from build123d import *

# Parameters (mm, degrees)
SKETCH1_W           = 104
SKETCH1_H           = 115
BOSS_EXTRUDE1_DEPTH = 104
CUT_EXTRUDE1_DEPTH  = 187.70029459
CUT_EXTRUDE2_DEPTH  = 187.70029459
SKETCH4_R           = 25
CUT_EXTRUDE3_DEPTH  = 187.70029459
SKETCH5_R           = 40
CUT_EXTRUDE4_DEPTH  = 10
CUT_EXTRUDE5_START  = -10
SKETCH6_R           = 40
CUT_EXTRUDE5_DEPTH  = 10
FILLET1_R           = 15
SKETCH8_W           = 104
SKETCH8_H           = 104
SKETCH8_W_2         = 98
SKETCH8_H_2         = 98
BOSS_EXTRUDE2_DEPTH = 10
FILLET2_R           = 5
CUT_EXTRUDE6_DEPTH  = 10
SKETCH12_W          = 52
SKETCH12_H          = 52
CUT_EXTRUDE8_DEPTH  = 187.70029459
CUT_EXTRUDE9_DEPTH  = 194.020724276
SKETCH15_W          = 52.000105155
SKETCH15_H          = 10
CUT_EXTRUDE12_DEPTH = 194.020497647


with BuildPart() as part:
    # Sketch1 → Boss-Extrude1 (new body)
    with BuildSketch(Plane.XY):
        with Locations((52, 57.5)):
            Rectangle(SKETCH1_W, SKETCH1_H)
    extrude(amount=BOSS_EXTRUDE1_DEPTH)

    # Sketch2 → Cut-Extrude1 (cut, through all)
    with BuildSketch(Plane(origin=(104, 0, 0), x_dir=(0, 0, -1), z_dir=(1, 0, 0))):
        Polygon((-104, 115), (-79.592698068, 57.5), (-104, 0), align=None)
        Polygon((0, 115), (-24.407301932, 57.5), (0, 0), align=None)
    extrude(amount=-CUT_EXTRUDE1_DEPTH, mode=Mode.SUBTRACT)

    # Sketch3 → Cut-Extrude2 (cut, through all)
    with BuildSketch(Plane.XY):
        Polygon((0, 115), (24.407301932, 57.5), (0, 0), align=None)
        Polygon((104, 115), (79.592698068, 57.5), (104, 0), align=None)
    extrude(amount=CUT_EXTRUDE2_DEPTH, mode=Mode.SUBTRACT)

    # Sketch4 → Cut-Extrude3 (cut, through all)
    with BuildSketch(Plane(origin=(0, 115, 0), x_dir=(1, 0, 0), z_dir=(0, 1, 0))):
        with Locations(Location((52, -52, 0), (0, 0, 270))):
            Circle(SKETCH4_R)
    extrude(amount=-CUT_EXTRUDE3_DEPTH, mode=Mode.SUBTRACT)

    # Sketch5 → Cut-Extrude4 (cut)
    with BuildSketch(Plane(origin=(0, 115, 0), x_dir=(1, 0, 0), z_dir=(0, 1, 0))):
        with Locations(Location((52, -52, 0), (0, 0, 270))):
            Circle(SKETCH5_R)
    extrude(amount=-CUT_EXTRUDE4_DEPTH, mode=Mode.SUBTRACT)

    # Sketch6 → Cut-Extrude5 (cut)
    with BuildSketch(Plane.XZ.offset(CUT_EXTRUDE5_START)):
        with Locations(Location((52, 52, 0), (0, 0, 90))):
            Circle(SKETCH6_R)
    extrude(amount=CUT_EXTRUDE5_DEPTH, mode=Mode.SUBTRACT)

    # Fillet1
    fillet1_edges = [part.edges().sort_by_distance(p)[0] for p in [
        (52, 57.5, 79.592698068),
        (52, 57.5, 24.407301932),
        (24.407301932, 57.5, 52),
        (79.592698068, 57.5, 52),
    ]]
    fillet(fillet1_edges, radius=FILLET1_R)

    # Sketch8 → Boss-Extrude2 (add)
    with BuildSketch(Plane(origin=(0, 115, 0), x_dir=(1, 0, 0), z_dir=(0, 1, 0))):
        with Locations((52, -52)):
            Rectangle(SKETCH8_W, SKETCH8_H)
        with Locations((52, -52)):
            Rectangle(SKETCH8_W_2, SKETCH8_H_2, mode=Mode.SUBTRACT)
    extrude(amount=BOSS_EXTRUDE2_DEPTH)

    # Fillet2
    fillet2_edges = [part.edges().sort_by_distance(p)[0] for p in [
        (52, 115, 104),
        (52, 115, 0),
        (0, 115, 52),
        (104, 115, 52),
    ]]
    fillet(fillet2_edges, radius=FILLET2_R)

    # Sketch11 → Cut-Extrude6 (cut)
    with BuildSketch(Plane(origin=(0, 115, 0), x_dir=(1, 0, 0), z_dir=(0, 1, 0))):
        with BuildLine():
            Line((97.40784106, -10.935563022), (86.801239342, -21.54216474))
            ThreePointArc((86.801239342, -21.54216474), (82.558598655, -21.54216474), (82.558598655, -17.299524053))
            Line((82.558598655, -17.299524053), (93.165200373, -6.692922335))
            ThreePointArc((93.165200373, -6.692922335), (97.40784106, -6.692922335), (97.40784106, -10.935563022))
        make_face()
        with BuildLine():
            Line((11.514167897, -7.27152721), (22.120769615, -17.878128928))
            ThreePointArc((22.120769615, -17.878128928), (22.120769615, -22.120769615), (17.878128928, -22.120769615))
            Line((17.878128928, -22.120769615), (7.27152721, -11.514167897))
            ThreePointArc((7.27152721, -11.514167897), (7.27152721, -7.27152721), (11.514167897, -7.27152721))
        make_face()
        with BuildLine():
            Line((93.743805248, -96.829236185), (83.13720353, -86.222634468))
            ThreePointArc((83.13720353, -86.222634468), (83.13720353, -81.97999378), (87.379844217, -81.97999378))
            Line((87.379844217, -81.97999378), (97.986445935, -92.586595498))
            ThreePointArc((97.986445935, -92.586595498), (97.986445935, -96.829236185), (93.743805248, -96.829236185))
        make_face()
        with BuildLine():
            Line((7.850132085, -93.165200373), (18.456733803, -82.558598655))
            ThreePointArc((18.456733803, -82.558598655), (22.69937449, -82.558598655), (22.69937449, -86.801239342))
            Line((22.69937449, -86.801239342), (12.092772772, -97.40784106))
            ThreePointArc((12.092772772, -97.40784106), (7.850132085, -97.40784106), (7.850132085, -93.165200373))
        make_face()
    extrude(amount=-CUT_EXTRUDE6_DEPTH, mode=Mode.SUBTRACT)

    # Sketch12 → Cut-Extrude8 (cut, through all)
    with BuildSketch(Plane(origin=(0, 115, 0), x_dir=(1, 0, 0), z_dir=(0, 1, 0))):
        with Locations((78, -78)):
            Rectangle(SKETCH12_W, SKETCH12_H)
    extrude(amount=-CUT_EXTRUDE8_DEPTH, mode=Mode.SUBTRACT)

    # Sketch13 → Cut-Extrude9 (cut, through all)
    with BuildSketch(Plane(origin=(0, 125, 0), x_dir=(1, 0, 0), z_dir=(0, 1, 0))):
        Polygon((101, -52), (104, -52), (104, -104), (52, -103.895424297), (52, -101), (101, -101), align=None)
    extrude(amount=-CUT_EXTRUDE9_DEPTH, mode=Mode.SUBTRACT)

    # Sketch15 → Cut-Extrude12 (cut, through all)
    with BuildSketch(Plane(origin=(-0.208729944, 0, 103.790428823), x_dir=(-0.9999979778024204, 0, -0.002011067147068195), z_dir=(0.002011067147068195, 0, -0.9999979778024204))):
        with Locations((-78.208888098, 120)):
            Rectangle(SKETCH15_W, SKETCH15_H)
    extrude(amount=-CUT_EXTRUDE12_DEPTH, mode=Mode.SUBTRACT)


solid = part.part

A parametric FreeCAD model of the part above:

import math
import FreeCAD as App
import Part
import Sketcher

V = App.Vector
Q = App.Units.Quantity


def edges_at(feature, points):
    """Names of the edges that pass closest to the given points."""
    edges = feature.Shape.Edges
    near = lambda p: min(range(len(edges)), key=lambda i: edges[i].distToShape(Part.Vertex(*p))[0])
    return sorted({f"Edge{near(p) + 1}" for p in points})

doc = App.newDocument("Part")
body = doc.addObject("PartDesign::Body", "Body")

sketch1 = body.newObject("Sketcher::SketchObject", "Sketch")
sketch1.AttachmentSupport = (doc.getObject("XY_Plane"), [""])
sketch1.MapMode = "FlatFace"
sketch1.addGeometry([
    Part.LineSegment(V(0, 115, 0), V(0, 0, 0)),
    Part.LineSegment(V(0, 0, 0), V(104, 0, 0)),
    Part.LineSegment(V(104, 0, 0), V(104, 115, 0)),
    Part.LineSegment(V(104, 115, 0), V(0, 115, 0)),
], False)
sketch1.addConstraint([
    Sketcher.Constraint("Coincident", 0, 2, 1, 1),
    Sketcher.Constraint("Coincident", 1, 2, 2, 1),
    Sketcher.Constraint("Coincident", 2, 2, 3, 1),
    Sketcher.Constraint("Coincident", 3, 2, 0, 1),
    Sketcher.Constraint("Vertical", 0),
    Sketcher.Constraint("Horizontal", 1),
    Sketcher.Constraint("Vertical", 2),
    Sketcher.Constraint("Horizontal", 3),
    Sketcher.Constraint("Coincident", 0, 2, -1, 1),
    Sketcher.Constraint("DistanceX", 1, 1, 1, 2, 104.0),
    Sketcher.Constraint("DistanceY", 0, 2, 0, 1, 115.0),
])
pad1 = body.newObject("PartDesign::Pad", "Pad")
pad1.Profile = sketch1
pad1.Length = 104

sketch2 = body.newObject("Sketcher::SketchObject", "Sketch001")
sketch2.AttachmentSupport = (doc.getObject("YZ_Plane"), [""])
sketch2.MapMode = "FlatFace"
sketch2.AttachmentOffset = App.Placement(V(0, 0, 104), App.Rotation())
sketch2.addGeometry([
    Part.LineSegment(V(57.5, 79.592698, 0), V(115, 104, 0)),
    Part.LineSegment(V(115, 104, 0), V(0, 104, 0)),
    Part.LineSegment(V(0, 104, 0), V(57.5, 79.592698, 0)),
    Part.LineSegment(V(115, 0, 0), V(57.5, 24.407302, 0)),
    Part.LineSegment(V(57.5, 24.407302, 0), V(0, 0, 0)),
    Part.LineSegment(V(0, 0, 0), V(115, 0, 0)),
], False)
sketch2.addConstraint([
    Sketcher.Constraint("Coincident", 0, 2, 1, 1),
    Sketcher.Constraint("Coincident", 1, 2, 2, 1),
    Sketcher.Constraint("Coincident", 2, 2, 0, 1),
    Sketcher.Constraint("Coincident", 3, 2, 4, 1),
    Sketcher.Constraint("Coincident", 4, 2, 5, 1),
    Sketcher.Constraint("Coincident", 5, 2, 3, 1),
    Sketcher.Constraint("Horizontal", 1),
    Sketcher.Constraint("Horizontal", 5),
    Sketcher.Constraint("Coincident", 4, 2, -1, 1),
    Sketcher.Constraint("PointOnObject", 1, 2, -2),
    Sketcher.Constraint("Parallel", 2, 3),
    Sketcher.Constraint("Parallel", 0, 4),
    Sketcher.Constraint("Vertical", 2, 2, 3, 2),
    Sketcher.Constraint("Vertical", 0, 2, 5, 2),
    Sketcher.Constraint("DistanceX", 1, 2, 1, 1, 115.0),
    Sketcher.Constraint("Angle", 0, Q("23 deg")),
    Sketcher.Constraint("DistanceY", -1, 1, 0, 2, 104.0),
])
pocket1 = body.newObject("PartDesign::Pocket", "Pocket")
pocket1.Profile = sketch2
pocket1.Type = "ThroughAll"

sketch3 = body.newObject("Sketcher::SketchObject", "Sketch002")
sketch3.AttachmentSupport = (doc.getObject("XY_Plane"), [""])
sketch3.MapMode = "FlatFace"
sketch3.addGeometry([
    Part.LineSegment(V(24.407302, 57.5, 0), V(0, 115, 0)),
    Part.LineSegment(V(0, 115, 0), V(0, 0, 0)),
    Part.LineSegment(V(0, 0, 0), V(24.407302, 57.5, 0)),
    Part.LineSegment(V(104, 115, 0), V(79.592698, 57.5, 0)),
    Part.LineSegment(V(79.592698, 57.5, 0), V(104, 0, 0)),
    Part.LineSegment(V(104, 0, 0), V(104, 115, 0)),
], False)
sketch3.addConstraint([
    Sketcher.Constraint("Coincident", 0, 2, 1, 1),
    Sketcher.Constraint("Coincident", 1, 2, 2, 1),
    Sketcher.Constraint("Coincident", 2, 2, 0, 1),
    Sketcher.Constraint("Coincident", 3, 2, 4, 1),
    Sketcher.Constraint("Coincident", 4, 2, 5, 1),
    Sketcher.Constraint("Coincident", 5, 2, 3, 1),
    Sketcher.Constraint("Vertical", 1),
    Sketcher.Constraint("Vertical", 5),
    Sketcher.Constraint("Coincident", 1, 2, -1, 1),
    Sketcher.Constraint("PointOnObject", 4, 2, -1),
    Sketcher.Constraint("Parallel", 2, 3),
    Sketcher.Constraint("Parallel", 0, 4),
    Sketcher.Constraint("Horizontal", 2, 2, 3, 2),
    Sketcher.Constraint("Horizontal", 0, 2, 5, 2),
    Sketcher.Constraint("DistanceY", 1, 2, 1, 1, 115.0),
    Sketcher.Constraint("Angle", 0, Q("113 deg")),
    Sketcher.Constraint("DistanceX", -1, 1, 4, 2, 104.0),
])
pocket2 = body.newObject("PartDesign::Pocket", "Pocket001")
pocket2.Profile = sketch3
pocket2.Type = "ThroughAll"
pocket2.Reversed = True

sketch4 = body.newObject("Sketcher::SketchObject", "Sketch003")
sketch4.AttachmentSupport = (doc.getObject("XZ_Plane"), [""])
sketch4.MapMode = "FlatFace"
sketch4.AttachmentOffset = App.Placement(V(0, 0, -115), App.Rotation())
sketch4.addGeometry(Part.Circle(V(52, 52, 0), V(0, 0, 1), 25), False)
sketch4.addConstraint([
    Sketcher.Constraint("Diameter", 0, 50.0),
    Sketcher.Constraint("DistanceX", -1, 1, 0, 3, 52.0),
    Sketcher.Constraint("DistanceY", -1, 1, 0, 3, 52.0),
])
pocket3 = body.newObject("PartDesign::Pocket", "Pocket002")
pocket3.Profile = sketch4
pocket3.Type = "ThroughAll"
pocket3.Reversed = True

sketch5 = body.newObject("Sketcher::SketchObject", "Sketch004")
sketch5.AttachmentSupport = (doc.getObject("XZ_Plane"), [""])
sketch5.MapMode = "FlatFace"
sketch5.AttachmentOffset = App.Placement(V(0, 0, -115), App.Rotation())
sketch5.addGeometry(Part.Circle(V(52, 52, 0), V(0, 0, 1), 40), False)
sketch5.addConstraint([
    Sketcher.Constraint("Diameter", 0, 80.0),
    Sketcher.Constraint("DistanceX", -1, 1, 0, 3, 52.0),
    Sketcher.Constraint("DistanceY", -1, 1, 0, 3, 52.0),
])
pocket4 = body.newObject("PartDesign::Pocket", "Pocket003")
pocket4.Profile = sketch5
pocket4.Length = 10
pocket4.Reversed = True

sketch6 = body.newObject("Sketcher::SketchObject", "Sketch005")
sketch6.AttachmentSupport = (doc.getObject("XZ_Plane"), [""])
sketch6.MapMode = "FlatFace"
sketch6.AttachmentOffset = App.Placement(V(0, 0, -10), App.Rotation())
sketch6.addGeometry(Part.Circle(V(52, 52, 0), V(0, 0, 1), 40), False)
sketch6.addConstraint([
    Sketcher.Constraint("Diameter", 0, 80.0),
    Sketcher.Constraint("DistanceX", -1, 1, 0, 3, 52.0),
    Sketcher.Constraint("DistanceY", -1, 1, 0, 3, 52.0),
])
pocket5 = body.newObject("PartDesign::Pocket", "Pocket004")
pocket5.Profile = sketch6
pocket5.Length = 10
pocket5.Reversed = True
doc.recompute()

fillet = body.newObject("PartDesign::Fillet", "Fillet")
fillet.Base = (pocket5, edges_at(pocket5, [
    (52, 57.5, 79.593),
    (52, 57.5, 24.407),
    (24.407, 57.5, 52),
    (79.593, 57.5, 52),
]))
fillet.Radius = 15

sketch7 = body.newObject("Sketcher::SketchObject", "Sketch006")
sketch7.AttachmentSupport = (doc.getObject("XZ_Plane"), [""])
sketch7.MapMode = "FlatFace"
sketch7.AttachmentOffset = App.Placement(V(0, 0, -115), App.Rotation())
sketch7.addGeometry([
    Part.LineSegment(V(0, 0, 0), V(0, 104, 0)),
    Part.LineSegment(V(0, 104, 0), V(104, 104, 0)),
    Part.LineSegment(V(104, 104, 0), V(104, 0, 0)),
    Part.LineSegment(V(104, 0, 0), V(0, 0, 0)),
    Part.LineSegment(V(101, 101, 0), V(3, 101, 0)),
    Part.LineSegment(V(3, 101, 0), V(3, 3, 0)),
    Part.LineSegment(V(3, 3, 0), V(101, 3, 0)),
    Part.LineSegment(V(101, 3, 0), V(101, 101, 0)),
], False)
sketch7.addConstraint([
    Sketcher.Constraint("Coincident", 0, 2, 1, 1),
    Sketcher.Constraint("Coincident", 1, 2, 2, 1),
    Sketcher.Constraint("Coincident", 2, 2, 3, 1),
    Sketcher.Constraint("Coincident", 3, 2, 0, 1),
    Sketcher.Constraint("Coincident", 4, 2, 5, 1),
    Sketcher.Constraint("Coincident", 5, 2, 6, 1),
    Sketcher.Constraint("Coincident", 6, 2, 7, 1),
    Sketcher.Constraint("Coincident", 7, 2, 4, 1),
    Sketcher.Constraint("Vertical", 0),
    Sketcher.Constraint("Horizontal", 1),
    Sketcher.Constraint("Vertical", 2),
    Sketcher.Constraint("Horizontal", 3),
    Sketcher.Constraint("Horizontal", 4),
    Sketcher.Constraint("Vertical", 5),
    Sketcher.Constraint("Horizontal", 6),
    Sketcher.Constraint("Vertical", 7),
    Sketcher.Constraint("Coincident", 3, 2, -1, 1),
    Sketcher.Constraint("Equal", 3, 0),
    Sketcher.Constraint("Equal", 6, 5),
    Sketcher.Constraint("DistanceX", 1, 1, 1, 2, 104.0),
    Sketcher.Constraint("DistanceX", 4, 2, 4, 1, 98.0),
    Sketcher.Constraint("DistanceX", -1, 1, 4, 2, 3.0),
    Sketcher.Constraint("DistanceY", -1, 1, 4, 2, 101.0),
])
pad2 = body.newObject("PartDesign::Pad", "Pad001")
pad2.Profile = sketch7
pad2.Length = 10
pad2.Reversed = True
doc.recompute()

fillet2 = body.newObject("PartDesign::Fillet", "Fillet001")
fillet2.Base = (pad2, edges_at(pad2, [
    (52, 115, 104),
    (52, 115, 0),
    (0, 115, 52),
    (104, 115, 52),
]))
fillet2.Radius = 5

sketch8 = body.newObject("Sketcher::SketchObject", "Sketch007")
sketch8.AttachmentSupport = (doc.getObject("XZ_Plane"), [""])
sketch8.MapMode = "FlatFace"
sketch8.AttachmentOffset = App.Placement(V(0, 0, -115), App.Rotation())
sketch8.addGeometry([
    Part.LineSegment(V(86.801239, 21.542165, 0), V(97.407841, 10.935563, 0)),
    Part.ArcOfCircle(Part.Circle(V(95.286521, 8.814243, 0), V(0, 0, 1), 3), math.radians(-135), math.radians(45)),
    Part.LineSegment(V(93.1652, 6.692922, 0), V(82.558599, 17.299524, 0)),
    Part.ArcOfCircle(Part.Circle(V(84.679919, 19.420844, 0), V(0, 0, 1), 3), math.radians(45), math.radians(225)),
    Part.LineSegment(V(22.12077, 17.878129, 0), V(11.514168, 7.271527, 0)),
    Part.ArcOfCircle(Part.Circle(V(9.392848, 9.392848, 0), V(0, 0, 1), 3), math.radians(135), math.radians(315)),
    Part.LineSegment(V(7.271527, 11.514168, 0), V(17.878129, 22.12077, 0)),
    Part.ArcOfCircle(Part.Circle(V(19.999449, 19.999449, 0), V(0, 0, 1), 3), math.radians(-45), math.radians(135)),
    Part.LineSegment(V(83.137204, 86.222634, 0), V(93.743805, 96.829236, 0)),
    Part.ArcOfCircle(Part.Circle(V(95.865126, 94.707916, 0), V(0, 0, 1), 3), math.radians(-45), math.radians(135)),
    Part.LineSegment(V(97.986446, 92.586595, 0), V(87.379844, 81.979994, 0)),
    Part.ArcOfCircle(Part.Circle(V(85.258524, 84.101314, 0), V(0, 0, 1), 3), math.radians(135), math.radians(315)),
    Part.LineSegment(V(18.456734, 82.558599, 0), V(7.850132, 93.1652, 0)),
    Part.ArcOfCircle(Part.Circle(V(9.971452, 95.286521, 0), V(0, 0, 1), 3), math.radians(45), math.radians(225)),
    Part.LineSegment(V(12.092773, 97.407841, 0), V(22.699374, 86.801239, 0)),
    Part.ArcOfCircle(Part.Circle(V(20.578054, 84.679919, 0), V(0, 0, 1), 3), math.radians(-135), math.radians(45)),
], False)
sketch8.addConstraint([
    Sketcher.Constraint("Tangent", 0, 2, 1, 2),
    Sketcher.Constraint("Tangent", 1, 1, 2, 1),
    Sketcher.Constraint("Tangent", 2, 2, 3, 2),
    Sketcher.Constraint("Tangent", 3, 1, 0, 1),
    Sketcher.Constraint("Tangent", 4, 2, 5, 2),
    Sketcher.Constraint("Tangent", 5, 1, 6, 1),
    Sketcher.Constraint("Tangent", 6, 2, 7, 2),
    Sketcher.Constraint("Tangent", 7, 1, 4, 1),
    Sketcher.Constraint("Tangent", 8, 2, 9, 2),
    Sketcher.Constraint("Tangent", 9, 1, 10, 1),
    Sketcher.Constraint("Tangent", 10, 2, 11, 2),
    Sketcher.Constraint("Tangent", 11, 1, 8, 1),
    Sketcher.Constraint("Tangent", 12, 2, 13, 2),
    Sketcher.Constraint("Tangent", 13, 1, 14, 1),
    Sketcher.Constraint("Tangent", 14, 2, 15, 2),
    Sketcher.Constraint("Tangent", 15, 1, 12, 1),
    Sketcher.Constraint("Equal", 1, 3),
    Sketcher.Constraint("Equal", 3, 5),
    Sketcher.Constraint("Equal", 5, 7),
    Sketcher.Constraint("Equal", 7, 9),
    Sketcher.Constraint("Equal", 9, 11),
    Sketcher.Constraint("Equal", 11, 13),
    Sketcher.Constraint("Equal", 13, 15),
    Sketcher.Constraint("Perpendicular", 2, 4),
    Sketcher.Constraint("Parallel", 6, 8),
    Sketcher.Constraint("Perpendicular", 10, 12),
    Sketcher.Constraint("Equal", 2, 4),
    Sketcher.Constraint("Equal", 6, 8),
    Sketcher.Constraint("Equal", 10, 12),
    Sketcher.Constraint("Radius", 1, 3.0),
    Sketcher.Constraint("Angle", 0, Q("-45 deg")),
    Sketcher.Constraint("Distance", 0, 15.0),
    Sketcher.Constraint("DistanceX", -1, 1, 1, 1, 93.1652),
    Sketcher.Constraint("DistanceY", -1, 1, 12, 2, 93.1652),
    Sketcher.Constraint("DistanceX", -1, 1, 7, 3, 19.999449),
    Sketcher.Constraint("DistanceY", -1, 1, 7, 3, 19.999449),
    Sketcher.Constraint("DistanceY", 3, 3, 9, 3, 75.287071),
    Sketcher.Constraint("DistanceX", 5, 3, 9, 3, 86.472278),
    Sketcher.Constraint("DistanceY", 5, 3, 9, 3, 85.315068),
    Sketcher.Constraint("DistanceX", 13, 3, 11, 3, 75.287071),
])
pocket6 = body.newObject("PartDesign::Pocket", "Pocket005")
pocket6.Profile = sketch8
pocket6.Length = 10
pocket6.Reversed = True

sketch9 = body.newObject("Sketcher::SketchObject", "Sketch008")
sketch9.AttachmentSupport = (doc.getObject("XZ_Plane"), [""])
sketch9.MapMode = "FlatFace"
sketch9.AttachmentOffset = App.Placement(V(0, 0, -115), App.Rotation())
sketch9.addGeometry([
    Part.LineSegment(V(52, 52, 0), V(52, 104, 0)),
    Part.LineSegment(V(52, 104, 0), V(104, 104, 0)),
    Part.LineSegment(V(104, 104, 0), V(104, 52, 0)),
    Part.LineSegment(V(104, 52, 0), V(52, 52, 0)),
], False)
sketch9.addConstraint([
    Sketcher.Constraint("Coincident", 0, 2, 1, 1),
    Sketcher.Constraint("Coincident", 1, 2, 2, 1),
    Sketcher.Constraint("Coincident", 2, 2, 3, 1),
    Sketcher.Constraint("Coincident", 3, 2, 0, 1),
    Sketcher.Constraint("Vertical", 0),
    Sketcher.Constraint("Horizontal", 1),
    Sketcher.Constraint("Vertical", 2),
    Sketcher.Constraint("Horizontal", 3),
    Sketcher.Constraint("Equal", 3, 0),
    Sketcher.Constraint("DistanceX", 1, 1, 1, 2, 52.0),
    Sketcher.Constraint("DistanceX", -1, 1, 0, 2, 52.0),
    Sketcher.Constraint("DistanceY", -1, 1, 0, 2, 104.0),
])
pocket7 = body.newObject("PartDesign::Pocket", "Pocket006")
pocket7.Profile = sketch9
pocket7.Type = "ThroughAll"
pocket7.Reversed = True

sketch10 = body.newObject("Sketcher::SketchObject", "Sketch009")
sketch10.AttachmentSupport = (doc.getObject("XZ_Plane"), [""])
sketch10.MapMode = "FlatFace"
sketch10.AttachmentOffset = App.Placement(V(0, 0, -125), App.Rotation())
sketch10.addGeometry([
    Part.LineSegment(V(104, 52, 0), V(101, 52, 0)),
    Part.LineSegment(V(101, 52, 0), V(101, 101, 0)),
    Part.LineSegment(V(101, 101, 0), V(52, 101, 0)),
    Part.LineSegment(V(52, 101, 0), V(52, 103.895424, 0)),
    Part.LineSegment(V(52, 103.895424, 0), V(104, 104, 0)),
    Part.LineSegment(V(104, 104, 0), V(104, 52, 0)),
], False)
sketch10.addConstraint([
    Sketcher.Constraint("Coincident", 0, 2, 1, 1),
    Sketcher.Constraint("Coincident", 1, 2, 2, 1),
    Sketcher.Constraint("Coincident", 2, 2, 3, 1),
    Sketcher.Constraint("Coincident", 3, 2, 4, 1),
    Sketcher.Constraint("Coincident", 4, 2, 5, 1),
    Sketcher.Constraint("Coincident", 5, 2, 0, 1),
    Sketcher.Constraint("Horizontal", 0),
    Sketcher.Constraint("Vertical", 1),
    Sketcher.Constraint("Horizontal", 2),
    Sketcher.Constraint("Vertical", 3),
    Sketcher.Constraint("Vertical", 5),
    Sketcher.Constraint("Equal", 2, 1),
    Sketcher.Constraint("DistanceX", 0, 2, 0, 1, 3.0),
    Sketcher.Constraint("DistanceX", 2, 2, 2, 1, 49.0),
    Sketcher.Constraint("DistanceY", 5, 2, 5, 1, 52.0),
    Sketcher.Constraint("DistanceX", -1, 1, 0, 2, 101.0),
    Sketcher.Constraint("DistanceY", -1, 1, 0, 2, 52.0),
    Sketcher.Constraint("DistanceY", 3, 1, 3, 2, 2.895424),
])
pocket8 = body.newObject("PartDesign::Pocket", "Pocket007")
pocket8.Profile = sketch10
pocket8.Type = "ThroughAll"
pocket8.Reversed = True

sketch11 = body.newObject("Sketcher::SketchObject", "Sketch010")
sketch11.Placement = App.Placement(V(-0.20873, 0, 103.790429), App.Rotation(V(-0.999997978, 0, -0.002011067), V(0, 1, 0), V(0.002011067, 0, -0.999997978), "ZXY"))
sketch11.addGeometry([
    Part.LineSegment(V(-104.208941, 125, 0), V(-104.208941, 115, 0)),
    Part.LineSegment(V(-104.208941, 115, 0), V(-52.208836, 115, 0)),
    Part.LineSegment(V(-52.208836, 115, 0), V(-52.208836, 125, 0)),
    Part.LineSegment(V(-52.208836, 125, 0), V(-104.208941, 125, 0)),
], False)
sketch11.addConstraint([
    Sketcher.Constraint("Coincident", 0, 2, 1, 1),
    Sketcher.Constraint("Coincident", 1, 2, 2, 1),
    Sketcher.Constraint("Coincident", 2, 2, 3, 1),
    Sketcher.Constraint("Coincident", 3, 2, 0, 1),
    Sketcher.Constraint("Vertical", 0),
    Sketcher.Constraint("Horizontal", 1),
    Sketcher.Constraint("Vertical", 2),
    Sketcher.Constraint("Horizontal", 3),
    Sketcher.Constraint("DistanceY", 0, 2, 0, 1, 10.0),
    Sketcher.Constraint("DistanceY", -1, 1, 0, 2, 115.0),
    Sketcher.Constraint("DistanceX", 1, 1, 1, 2, 52.000105),
    Sketcher.Constraint("DistanceX", 0, 2, -1, 1, 104.208941),
])
pocket9 = body.newObject("PartDesign::Pocket", "Pocket008")
pocket9.Profile = sketch11
pocket9.Type = "ThroughAll"

doc.recompute()
